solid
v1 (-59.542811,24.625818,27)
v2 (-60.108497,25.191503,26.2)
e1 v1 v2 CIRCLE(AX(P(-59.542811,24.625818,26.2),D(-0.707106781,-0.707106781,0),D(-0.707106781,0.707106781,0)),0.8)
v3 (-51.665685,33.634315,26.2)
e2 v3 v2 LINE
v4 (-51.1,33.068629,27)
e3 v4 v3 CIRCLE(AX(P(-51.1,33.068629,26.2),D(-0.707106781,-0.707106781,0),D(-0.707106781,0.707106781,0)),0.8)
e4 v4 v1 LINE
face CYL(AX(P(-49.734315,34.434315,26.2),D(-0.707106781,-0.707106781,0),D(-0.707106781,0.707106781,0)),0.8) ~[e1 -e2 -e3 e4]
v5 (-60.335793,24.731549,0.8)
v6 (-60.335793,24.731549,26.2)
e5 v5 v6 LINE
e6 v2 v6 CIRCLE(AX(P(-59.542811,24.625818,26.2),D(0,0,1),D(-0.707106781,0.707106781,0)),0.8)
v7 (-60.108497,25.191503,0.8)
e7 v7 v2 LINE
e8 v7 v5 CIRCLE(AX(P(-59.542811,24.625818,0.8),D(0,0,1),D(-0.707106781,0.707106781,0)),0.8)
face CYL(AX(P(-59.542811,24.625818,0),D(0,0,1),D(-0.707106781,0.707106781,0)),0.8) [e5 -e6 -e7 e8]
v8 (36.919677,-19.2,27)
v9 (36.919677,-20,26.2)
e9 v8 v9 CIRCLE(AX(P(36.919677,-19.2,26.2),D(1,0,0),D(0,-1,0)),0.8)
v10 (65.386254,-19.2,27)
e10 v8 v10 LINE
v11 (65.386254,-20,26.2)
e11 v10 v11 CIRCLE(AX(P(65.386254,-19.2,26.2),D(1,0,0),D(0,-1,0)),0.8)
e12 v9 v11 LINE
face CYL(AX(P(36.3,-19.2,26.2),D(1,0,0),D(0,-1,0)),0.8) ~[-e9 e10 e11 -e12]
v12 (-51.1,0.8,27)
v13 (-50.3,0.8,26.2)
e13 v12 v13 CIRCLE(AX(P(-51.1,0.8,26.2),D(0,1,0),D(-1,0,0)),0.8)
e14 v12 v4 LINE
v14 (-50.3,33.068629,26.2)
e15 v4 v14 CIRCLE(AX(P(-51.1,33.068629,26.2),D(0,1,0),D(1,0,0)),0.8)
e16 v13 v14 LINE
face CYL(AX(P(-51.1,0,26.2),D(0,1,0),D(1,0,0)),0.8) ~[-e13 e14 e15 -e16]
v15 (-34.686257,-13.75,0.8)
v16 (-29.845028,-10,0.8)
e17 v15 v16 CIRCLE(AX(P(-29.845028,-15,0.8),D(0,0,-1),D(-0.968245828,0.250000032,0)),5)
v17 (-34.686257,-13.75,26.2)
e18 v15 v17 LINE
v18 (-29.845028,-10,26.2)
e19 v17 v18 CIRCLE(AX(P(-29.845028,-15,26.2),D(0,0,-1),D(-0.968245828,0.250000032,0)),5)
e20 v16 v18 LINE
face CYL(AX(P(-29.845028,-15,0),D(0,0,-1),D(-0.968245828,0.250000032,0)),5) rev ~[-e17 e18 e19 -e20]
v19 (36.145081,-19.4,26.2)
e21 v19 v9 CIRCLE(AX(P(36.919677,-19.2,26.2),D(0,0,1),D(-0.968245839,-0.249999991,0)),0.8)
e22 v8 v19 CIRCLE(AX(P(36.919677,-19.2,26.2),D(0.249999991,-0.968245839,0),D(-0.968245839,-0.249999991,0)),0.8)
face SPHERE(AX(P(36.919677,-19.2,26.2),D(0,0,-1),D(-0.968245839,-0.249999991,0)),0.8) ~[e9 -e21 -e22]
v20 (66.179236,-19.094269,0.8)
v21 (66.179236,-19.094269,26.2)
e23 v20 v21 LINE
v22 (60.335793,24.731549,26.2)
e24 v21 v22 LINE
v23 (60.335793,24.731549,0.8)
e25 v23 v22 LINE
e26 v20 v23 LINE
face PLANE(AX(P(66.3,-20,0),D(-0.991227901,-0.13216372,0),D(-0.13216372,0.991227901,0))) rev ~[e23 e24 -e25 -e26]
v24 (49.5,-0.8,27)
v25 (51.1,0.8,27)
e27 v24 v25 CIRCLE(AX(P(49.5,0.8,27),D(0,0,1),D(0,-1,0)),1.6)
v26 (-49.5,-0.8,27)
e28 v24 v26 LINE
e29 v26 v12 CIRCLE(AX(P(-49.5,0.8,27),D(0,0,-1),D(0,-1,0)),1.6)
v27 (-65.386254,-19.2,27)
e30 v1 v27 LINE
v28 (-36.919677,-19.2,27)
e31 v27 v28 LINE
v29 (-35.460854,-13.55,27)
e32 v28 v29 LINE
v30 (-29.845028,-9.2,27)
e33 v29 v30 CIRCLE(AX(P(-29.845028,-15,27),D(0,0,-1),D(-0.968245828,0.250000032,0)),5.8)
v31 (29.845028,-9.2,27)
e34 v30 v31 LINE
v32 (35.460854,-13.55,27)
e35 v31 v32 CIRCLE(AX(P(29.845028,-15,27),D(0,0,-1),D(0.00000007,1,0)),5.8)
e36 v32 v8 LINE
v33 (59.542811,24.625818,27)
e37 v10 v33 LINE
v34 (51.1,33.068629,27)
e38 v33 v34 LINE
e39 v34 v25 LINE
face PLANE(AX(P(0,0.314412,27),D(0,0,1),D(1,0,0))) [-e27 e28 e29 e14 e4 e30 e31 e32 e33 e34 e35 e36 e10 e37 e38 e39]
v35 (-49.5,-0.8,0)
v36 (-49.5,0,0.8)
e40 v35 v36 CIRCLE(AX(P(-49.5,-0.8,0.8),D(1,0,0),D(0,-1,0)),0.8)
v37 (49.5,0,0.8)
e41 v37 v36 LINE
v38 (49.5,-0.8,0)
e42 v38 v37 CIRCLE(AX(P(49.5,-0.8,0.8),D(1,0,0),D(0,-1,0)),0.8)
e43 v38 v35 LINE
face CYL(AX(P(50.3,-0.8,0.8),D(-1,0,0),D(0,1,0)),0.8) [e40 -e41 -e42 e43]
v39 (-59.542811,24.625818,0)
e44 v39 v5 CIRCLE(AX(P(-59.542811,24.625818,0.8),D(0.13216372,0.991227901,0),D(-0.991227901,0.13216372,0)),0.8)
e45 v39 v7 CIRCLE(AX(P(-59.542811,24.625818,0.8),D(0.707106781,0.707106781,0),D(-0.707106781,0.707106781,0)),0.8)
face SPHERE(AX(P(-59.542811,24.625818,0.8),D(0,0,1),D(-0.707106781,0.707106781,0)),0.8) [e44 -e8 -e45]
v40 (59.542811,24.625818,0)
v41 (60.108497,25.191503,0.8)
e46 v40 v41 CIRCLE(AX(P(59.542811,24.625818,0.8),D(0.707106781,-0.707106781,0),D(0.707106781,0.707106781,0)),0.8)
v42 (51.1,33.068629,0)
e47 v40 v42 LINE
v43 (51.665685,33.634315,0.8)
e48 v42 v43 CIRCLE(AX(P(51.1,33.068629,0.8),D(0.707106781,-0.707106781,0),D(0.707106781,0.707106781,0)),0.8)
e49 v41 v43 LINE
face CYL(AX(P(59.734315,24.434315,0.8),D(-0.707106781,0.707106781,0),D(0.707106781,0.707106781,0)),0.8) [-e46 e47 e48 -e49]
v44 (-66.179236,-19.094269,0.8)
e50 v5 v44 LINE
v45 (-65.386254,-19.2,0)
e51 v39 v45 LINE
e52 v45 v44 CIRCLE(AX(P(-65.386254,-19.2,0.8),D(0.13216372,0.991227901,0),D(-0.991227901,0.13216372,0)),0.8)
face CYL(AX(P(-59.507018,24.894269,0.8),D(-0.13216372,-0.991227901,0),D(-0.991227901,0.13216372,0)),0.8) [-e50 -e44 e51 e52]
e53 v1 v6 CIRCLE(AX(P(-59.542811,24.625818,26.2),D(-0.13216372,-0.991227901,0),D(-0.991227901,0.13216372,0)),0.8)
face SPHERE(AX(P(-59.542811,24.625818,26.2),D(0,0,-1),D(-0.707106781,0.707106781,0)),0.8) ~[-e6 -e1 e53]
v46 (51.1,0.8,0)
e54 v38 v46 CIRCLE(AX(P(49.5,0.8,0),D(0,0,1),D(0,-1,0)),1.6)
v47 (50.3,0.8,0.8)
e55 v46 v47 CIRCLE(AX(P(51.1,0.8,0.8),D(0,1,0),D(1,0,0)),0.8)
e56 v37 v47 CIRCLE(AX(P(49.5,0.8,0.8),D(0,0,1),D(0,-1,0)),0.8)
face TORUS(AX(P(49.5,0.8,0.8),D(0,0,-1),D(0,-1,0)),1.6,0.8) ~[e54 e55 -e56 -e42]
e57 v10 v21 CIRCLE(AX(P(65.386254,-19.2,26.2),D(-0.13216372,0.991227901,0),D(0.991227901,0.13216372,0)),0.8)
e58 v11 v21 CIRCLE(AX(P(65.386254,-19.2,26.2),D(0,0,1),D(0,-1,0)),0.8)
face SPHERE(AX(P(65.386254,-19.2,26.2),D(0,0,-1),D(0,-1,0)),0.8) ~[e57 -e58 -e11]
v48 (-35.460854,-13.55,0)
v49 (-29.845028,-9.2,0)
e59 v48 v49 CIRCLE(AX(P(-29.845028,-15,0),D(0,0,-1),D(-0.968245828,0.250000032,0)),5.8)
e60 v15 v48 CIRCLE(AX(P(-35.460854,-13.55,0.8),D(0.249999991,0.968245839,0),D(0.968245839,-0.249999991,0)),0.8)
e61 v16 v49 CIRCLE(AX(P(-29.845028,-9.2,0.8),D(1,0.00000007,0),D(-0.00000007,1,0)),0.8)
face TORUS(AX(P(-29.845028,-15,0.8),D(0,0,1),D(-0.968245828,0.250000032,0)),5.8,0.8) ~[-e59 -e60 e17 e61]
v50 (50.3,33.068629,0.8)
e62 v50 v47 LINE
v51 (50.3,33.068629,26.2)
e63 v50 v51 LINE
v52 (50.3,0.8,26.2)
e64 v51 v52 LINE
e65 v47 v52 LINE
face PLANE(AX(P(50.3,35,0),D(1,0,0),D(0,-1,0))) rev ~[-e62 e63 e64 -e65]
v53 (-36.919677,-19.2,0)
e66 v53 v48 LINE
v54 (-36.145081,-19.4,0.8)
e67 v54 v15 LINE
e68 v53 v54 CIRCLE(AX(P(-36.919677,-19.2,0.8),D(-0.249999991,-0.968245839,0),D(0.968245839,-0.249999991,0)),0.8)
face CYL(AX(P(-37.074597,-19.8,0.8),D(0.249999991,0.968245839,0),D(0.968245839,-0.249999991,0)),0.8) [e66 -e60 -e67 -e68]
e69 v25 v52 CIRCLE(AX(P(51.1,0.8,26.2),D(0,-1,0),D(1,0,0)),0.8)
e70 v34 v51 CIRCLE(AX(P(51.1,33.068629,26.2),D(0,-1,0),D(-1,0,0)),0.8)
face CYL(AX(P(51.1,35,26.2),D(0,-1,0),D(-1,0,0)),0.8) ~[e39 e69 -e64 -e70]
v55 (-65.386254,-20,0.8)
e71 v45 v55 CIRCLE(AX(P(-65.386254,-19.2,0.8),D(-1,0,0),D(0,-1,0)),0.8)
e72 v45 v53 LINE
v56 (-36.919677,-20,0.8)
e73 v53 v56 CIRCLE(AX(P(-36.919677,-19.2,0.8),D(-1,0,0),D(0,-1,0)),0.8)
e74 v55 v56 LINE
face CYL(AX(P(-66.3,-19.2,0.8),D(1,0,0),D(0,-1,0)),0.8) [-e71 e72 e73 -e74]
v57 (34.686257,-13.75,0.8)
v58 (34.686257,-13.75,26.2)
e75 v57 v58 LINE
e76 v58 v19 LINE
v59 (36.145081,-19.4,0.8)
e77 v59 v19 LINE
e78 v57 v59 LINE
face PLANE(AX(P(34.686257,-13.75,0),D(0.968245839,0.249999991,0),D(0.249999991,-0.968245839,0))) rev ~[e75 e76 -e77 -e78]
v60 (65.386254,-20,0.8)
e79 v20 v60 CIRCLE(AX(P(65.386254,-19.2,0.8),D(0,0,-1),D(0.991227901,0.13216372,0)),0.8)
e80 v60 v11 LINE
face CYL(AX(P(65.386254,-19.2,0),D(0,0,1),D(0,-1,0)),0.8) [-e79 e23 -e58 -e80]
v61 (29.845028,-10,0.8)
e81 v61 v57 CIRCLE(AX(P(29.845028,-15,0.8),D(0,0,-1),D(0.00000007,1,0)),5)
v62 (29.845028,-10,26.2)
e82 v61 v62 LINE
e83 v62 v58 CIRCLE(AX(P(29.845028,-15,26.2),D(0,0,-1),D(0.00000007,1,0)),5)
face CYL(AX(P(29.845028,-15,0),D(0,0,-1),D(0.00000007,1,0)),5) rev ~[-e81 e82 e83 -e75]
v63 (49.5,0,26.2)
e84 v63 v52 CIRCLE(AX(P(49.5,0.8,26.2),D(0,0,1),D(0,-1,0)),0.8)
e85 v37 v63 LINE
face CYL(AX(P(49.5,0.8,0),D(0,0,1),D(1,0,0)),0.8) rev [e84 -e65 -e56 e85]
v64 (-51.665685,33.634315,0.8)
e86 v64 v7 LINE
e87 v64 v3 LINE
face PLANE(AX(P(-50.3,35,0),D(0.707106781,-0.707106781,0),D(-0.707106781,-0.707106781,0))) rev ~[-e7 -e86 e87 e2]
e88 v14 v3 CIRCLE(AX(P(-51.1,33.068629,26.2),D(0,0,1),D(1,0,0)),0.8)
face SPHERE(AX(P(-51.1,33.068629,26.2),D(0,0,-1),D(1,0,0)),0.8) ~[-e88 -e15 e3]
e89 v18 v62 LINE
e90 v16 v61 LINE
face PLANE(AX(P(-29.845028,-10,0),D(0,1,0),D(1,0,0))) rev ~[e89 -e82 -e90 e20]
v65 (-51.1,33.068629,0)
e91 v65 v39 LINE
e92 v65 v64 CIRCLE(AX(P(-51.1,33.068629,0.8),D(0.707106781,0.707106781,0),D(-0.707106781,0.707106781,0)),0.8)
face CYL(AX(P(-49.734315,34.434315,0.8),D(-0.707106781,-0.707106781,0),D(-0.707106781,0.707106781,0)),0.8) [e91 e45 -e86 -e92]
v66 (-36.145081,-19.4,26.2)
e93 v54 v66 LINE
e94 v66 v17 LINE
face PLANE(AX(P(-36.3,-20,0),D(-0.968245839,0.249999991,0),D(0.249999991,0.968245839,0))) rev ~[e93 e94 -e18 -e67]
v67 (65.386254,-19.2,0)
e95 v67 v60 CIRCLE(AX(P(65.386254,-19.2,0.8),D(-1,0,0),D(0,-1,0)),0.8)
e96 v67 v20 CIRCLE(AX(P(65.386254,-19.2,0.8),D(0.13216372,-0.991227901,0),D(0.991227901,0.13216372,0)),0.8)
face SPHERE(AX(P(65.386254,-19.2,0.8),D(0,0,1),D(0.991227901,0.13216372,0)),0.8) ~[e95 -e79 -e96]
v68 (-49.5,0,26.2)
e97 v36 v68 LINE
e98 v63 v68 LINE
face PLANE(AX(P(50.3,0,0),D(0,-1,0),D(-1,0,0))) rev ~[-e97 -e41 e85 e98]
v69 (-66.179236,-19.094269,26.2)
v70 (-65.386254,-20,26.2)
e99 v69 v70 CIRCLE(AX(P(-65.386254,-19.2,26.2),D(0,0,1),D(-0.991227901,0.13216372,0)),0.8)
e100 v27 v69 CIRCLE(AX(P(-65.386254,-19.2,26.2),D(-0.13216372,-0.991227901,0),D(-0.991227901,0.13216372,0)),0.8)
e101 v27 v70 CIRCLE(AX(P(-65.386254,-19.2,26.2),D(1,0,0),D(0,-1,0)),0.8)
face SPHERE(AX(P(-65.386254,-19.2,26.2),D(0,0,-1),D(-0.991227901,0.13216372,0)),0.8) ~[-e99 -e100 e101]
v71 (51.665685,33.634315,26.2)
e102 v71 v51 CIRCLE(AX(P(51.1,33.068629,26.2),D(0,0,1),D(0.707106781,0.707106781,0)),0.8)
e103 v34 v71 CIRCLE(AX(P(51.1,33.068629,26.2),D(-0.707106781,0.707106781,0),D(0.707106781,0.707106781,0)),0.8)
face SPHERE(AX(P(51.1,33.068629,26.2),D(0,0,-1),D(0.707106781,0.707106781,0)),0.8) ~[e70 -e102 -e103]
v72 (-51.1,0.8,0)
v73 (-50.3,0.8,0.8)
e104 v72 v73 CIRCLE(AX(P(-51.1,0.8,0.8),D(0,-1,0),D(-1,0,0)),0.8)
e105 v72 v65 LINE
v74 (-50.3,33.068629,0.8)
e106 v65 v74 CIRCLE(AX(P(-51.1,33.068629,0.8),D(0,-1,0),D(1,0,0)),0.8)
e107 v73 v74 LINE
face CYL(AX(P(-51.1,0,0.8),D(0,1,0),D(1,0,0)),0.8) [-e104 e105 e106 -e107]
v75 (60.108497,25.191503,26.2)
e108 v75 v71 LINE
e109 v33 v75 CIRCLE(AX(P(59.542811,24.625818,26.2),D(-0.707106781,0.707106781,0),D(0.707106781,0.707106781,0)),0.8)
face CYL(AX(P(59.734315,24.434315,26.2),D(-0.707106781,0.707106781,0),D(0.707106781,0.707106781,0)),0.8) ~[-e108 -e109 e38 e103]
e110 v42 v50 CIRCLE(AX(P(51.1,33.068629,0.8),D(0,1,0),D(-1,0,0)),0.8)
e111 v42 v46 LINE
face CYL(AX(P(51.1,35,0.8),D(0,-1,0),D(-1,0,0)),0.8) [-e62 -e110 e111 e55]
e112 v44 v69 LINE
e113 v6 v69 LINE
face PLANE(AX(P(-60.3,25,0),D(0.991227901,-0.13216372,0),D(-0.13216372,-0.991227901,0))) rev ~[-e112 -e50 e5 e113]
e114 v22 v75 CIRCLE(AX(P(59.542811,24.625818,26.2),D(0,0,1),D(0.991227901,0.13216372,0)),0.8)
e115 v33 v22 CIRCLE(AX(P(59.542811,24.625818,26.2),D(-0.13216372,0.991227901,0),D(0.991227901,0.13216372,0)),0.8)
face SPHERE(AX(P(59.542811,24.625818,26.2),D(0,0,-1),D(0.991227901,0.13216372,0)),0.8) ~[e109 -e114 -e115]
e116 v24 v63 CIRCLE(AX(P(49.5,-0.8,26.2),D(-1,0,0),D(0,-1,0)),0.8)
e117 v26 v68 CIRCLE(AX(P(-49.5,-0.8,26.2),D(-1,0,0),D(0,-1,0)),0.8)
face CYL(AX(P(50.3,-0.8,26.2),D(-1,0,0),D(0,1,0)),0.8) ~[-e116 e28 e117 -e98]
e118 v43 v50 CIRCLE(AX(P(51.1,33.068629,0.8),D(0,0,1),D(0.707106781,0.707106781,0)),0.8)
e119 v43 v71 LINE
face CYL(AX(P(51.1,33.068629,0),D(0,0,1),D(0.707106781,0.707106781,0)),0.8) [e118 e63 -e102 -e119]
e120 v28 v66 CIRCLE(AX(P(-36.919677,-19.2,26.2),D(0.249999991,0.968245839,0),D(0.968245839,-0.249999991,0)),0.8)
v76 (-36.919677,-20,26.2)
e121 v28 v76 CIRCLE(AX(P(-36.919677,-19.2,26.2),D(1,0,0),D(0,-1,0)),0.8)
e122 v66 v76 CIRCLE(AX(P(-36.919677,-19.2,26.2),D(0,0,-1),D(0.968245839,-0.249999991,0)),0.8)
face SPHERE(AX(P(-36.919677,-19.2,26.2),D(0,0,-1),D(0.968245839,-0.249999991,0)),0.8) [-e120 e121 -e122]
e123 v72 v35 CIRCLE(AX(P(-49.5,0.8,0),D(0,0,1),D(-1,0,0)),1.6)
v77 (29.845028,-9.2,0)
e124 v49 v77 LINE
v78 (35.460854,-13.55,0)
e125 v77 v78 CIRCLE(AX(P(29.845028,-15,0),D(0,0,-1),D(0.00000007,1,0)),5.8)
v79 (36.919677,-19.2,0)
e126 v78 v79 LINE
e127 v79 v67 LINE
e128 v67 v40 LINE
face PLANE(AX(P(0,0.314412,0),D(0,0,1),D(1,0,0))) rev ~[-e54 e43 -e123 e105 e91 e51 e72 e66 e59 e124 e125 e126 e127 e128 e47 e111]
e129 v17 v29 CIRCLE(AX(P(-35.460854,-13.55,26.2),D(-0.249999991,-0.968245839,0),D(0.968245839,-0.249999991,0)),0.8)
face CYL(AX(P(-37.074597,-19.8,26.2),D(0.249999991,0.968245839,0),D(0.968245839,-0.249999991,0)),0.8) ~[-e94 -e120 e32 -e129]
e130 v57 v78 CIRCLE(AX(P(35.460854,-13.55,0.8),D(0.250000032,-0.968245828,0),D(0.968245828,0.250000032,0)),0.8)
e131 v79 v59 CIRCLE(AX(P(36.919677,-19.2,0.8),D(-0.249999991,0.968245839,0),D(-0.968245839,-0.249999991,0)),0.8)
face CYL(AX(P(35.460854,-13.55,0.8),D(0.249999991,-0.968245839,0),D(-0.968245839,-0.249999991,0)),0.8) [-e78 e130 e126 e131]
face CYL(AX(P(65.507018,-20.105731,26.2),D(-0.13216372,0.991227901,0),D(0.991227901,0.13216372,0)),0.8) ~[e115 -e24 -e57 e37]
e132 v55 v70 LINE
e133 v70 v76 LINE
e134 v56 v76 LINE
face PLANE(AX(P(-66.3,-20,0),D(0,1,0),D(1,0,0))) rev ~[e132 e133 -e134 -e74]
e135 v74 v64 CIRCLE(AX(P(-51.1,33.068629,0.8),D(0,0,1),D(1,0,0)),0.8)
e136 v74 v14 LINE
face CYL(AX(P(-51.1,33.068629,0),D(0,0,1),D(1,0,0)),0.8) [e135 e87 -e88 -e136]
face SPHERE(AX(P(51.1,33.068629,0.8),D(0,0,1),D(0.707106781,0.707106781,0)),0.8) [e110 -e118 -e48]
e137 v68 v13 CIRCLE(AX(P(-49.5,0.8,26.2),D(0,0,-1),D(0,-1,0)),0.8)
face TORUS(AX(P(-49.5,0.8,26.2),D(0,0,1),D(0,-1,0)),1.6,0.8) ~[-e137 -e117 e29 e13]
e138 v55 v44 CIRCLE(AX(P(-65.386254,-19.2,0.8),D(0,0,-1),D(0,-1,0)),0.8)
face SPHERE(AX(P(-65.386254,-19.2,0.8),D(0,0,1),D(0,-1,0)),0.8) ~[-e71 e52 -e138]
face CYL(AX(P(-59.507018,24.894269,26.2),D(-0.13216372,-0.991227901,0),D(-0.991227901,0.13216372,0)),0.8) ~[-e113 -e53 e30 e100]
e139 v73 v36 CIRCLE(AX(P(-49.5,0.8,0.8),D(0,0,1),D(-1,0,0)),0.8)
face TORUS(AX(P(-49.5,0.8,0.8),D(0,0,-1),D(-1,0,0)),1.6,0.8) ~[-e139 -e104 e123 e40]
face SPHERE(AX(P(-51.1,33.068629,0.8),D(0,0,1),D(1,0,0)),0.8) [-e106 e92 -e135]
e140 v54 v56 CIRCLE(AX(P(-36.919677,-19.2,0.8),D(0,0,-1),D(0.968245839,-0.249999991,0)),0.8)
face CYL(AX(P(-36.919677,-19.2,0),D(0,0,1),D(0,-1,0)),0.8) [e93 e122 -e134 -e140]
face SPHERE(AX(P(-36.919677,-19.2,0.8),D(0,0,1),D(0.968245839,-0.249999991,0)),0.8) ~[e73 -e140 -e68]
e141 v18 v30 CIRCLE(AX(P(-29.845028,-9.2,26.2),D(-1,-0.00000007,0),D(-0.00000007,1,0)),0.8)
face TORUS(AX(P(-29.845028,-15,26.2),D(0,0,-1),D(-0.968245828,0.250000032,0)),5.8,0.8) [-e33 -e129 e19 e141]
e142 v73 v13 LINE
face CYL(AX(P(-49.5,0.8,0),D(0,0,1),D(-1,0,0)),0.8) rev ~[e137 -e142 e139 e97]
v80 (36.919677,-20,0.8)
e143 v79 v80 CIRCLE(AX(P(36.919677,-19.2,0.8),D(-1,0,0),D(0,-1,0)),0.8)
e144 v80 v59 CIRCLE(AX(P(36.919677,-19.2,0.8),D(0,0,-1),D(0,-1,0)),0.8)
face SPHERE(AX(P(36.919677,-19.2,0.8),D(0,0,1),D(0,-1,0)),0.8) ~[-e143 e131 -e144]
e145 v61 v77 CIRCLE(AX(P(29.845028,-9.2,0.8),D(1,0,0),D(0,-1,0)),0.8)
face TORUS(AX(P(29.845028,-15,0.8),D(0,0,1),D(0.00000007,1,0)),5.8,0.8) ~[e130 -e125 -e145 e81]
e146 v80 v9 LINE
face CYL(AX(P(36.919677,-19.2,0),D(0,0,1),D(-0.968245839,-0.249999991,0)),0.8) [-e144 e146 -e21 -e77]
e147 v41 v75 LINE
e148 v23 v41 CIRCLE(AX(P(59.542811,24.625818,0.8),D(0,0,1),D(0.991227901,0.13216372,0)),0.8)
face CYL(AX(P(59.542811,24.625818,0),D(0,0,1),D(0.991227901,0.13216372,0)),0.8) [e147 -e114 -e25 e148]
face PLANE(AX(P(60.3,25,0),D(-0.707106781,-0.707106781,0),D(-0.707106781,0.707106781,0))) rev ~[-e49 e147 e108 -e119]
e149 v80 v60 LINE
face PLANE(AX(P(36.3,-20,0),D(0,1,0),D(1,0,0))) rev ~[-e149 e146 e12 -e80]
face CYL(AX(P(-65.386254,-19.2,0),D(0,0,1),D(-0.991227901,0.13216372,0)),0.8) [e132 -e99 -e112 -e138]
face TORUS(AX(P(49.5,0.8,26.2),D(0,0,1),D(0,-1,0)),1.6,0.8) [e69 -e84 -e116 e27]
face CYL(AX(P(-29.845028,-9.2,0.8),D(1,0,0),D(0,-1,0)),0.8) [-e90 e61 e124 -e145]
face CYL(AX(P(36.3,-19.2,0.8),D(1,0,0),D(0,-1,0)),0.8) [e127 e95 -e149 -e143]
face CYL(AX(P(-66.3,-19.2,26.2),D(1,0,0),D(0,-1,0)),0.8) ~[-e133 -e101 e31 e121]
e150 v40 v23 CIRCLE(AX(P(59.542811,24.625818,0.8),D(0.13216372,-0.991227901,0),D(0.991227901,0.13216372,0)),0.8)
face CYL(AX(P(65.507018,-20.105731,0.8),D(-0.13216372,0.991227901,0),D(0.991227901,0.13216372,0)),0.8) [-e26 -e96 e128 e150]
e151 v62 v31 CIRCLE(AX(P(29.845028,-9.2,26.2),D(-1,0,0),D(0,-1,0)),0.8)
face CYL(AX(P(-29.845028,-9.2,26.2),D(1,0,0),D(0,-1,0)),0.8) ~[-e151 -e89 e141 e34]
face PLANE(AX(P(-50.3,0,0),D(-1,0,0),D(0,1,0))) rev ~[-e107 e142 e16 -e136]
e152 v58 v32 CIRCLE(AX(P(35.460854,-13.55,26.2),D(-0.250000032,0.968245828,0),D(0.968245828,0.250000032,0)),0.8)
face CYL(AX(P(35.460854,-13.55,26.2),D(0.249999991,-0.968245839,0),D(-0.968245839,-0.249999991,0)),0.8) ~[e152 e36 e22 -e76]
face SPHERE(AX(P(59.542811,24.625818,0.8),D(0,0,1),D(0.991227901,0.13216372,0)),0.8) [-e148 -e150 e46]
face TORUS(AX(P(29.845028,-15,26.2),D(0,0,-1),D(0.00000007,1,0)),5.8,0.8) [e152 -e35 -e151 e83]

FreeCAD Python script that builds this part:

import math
import FreeCAD as App
import Part
import Sketcher

V = App.Vector

doc = App.newDocument("Part")
body = doc.addObject("PartDesign::Body", "Body")

sketch1 = body.newObject("Sketcher::SketchObject", "Sketch")
sketch1.AttachmentSupport = (doc.getObject("XY_Plane"), [""])
sketch1.MapMode = "FlatFace"
sketch1.addGeometry([
    Part.LineSegment(V(-50.3, 0, 0), V(-50.3, 35, 0)),
    Part.LineSegment(V(-50.3, 35, 0), V(-60.3, 25, 0)),
    Part.LineSegment(V(-60.3, 25, 0), V(-66.3, -20, 0)),
    Part.LineSegment(V(-66.3, -20, 0), V(-36.3, -20, 0)),
    Part.LineSegment(V(-36.3, -20, 0), V(-34.686257, -13.75, 0)),
    Part.ArcOfCircle(Part.Circle(V(-29.845028, -15, 0), V(0, 0, 1), 5), math.radians(90.000004), math.radians(165.522486)),
    Part.LineSegment(V(-29.845028, -10, 0), V(29.845028, -10, 0)),
    Part.ArcOfCircle(Part.Circle(V(29.845028, -15, 0), V(0, 0, 1), 5), math.radians(14.477514), math.radians(89.999996)),
    Part.LineSegment(V(34.686257, -13.75, 0), V(36.3, -20, 0)),
    Part.LineSegment(V(36.3, -20, 0), V(66.3, -20, 0)),
    Part.LineSegment(V(66.3, -20, 0), V(60.3, 25, 0)),
    Part.LineSegment(V(60.3, 25, 0), V(50.3, 35, 0)),
    Part.LineSegment(V(50.3, 35, 0), V(50.3, 0, 0)),
    Part.LineSegment(V(50.3, 0, 0), V(-50.3, 0, 0)),
], False)
sketch1.addConstraint([
    Sketcher.Constraint("Coincident", 0, 2, 1, 1),
    Sketcher.Constraint("Coincident", 1, 2, 2, 1),
    Sketcher.Constraint("Coincident", 2, 2, 3, 1),
    Sketcher.Constraint("Coincident", 3, 2, 4, 1),
    Sketcher.Constraint("Tangent", 4, 2, 5, 2),
    Sketcher.Constraint("Tangent", 5, 1, 6, 1),
    Sketcher.Constraint("Tangent", 6, 2, 7, 2),
    Sketcher.Constraint("Tangent", 7, 1, 8, 1),
    Sketcher.Constraint("Coincident", 8, 2, 9, 1),
    Sketcher.Constraint("Coincident", 9, 2, 10, 1),
    Sketcher.Constraint("Coincident", 10, 2, 11, 1),
    Sketcher.Constraint("Coincident", 11, 2, 12, 1),
    Sketcher.Constraint("Coincident", 12, 2, 13, 1),
    Sketcher.Constraint("Coincident", 13, 2, 0, 1),
    Sketcher.Constraint("Vertical", 0),
    Sketcher.Constraint("Horizontal", 3),
    Sketcher.Constraint("Horizontal", 6),
    Sketcher.Constraint("Horizontal", 9),
    Sketcher.Constraint("Vertical", 12),
    Sketcher.Constraint("Horizontal", 13),
    Sketcher.Constraint("Equal", 5, 7),
    Sketcher.Constraint("Symmetric", 12, 2, 13, 2, -1, 1),
    Sketcher.Constraint("Symmetric", 4, 2, 7, 1, -2),
    Sketcher.Constraint("Symmetric", 2, 2, 9, 2, -2),
    Sketcher.Constraint("Symmetric", 1, 2, 10, 2, -2),
    Sketcher.Constraint("Perpendicular", 1, 11),
    Sketcher.Constraint("Horizontal", 0, 2, 11, 2),
    Sketcher.Constraint("Radius", 5, 5.0),
    Sketcher.Constraint("DistanceX", 3, 1, 3, 2, 30.0),
    Sketcher.Constraint("DistanceY", 0, 1, 0, 2, 35.0),
    Sketcher.Constraint("DistanceX", 13, 2, 13, 1, 100.6),
    Sketcher.Constraint("DistanceY", 5, 3, -1, 1, 15.0),
    Sketcher.Constraint("DistanceY", -1, 1, 1, 2, 25.0),
    Sketcher.Constraint("DistanceY", 2, 2, -1, 1, 20.0),
    Sketcher.Constraint("DistanceX", 2, 2, 1, 2, 6.0),
    Sketcher.Constraint("DistanceY", 4, 2, -1, 1, 13.75),
])
pad1 = body.newObject("PartDesign::Pad", "Pad")
pad1.Profile = sketch1
pad1.Length = 27
doc.recompute()

fillet = body.newObject("PartDesign::Fillet", "Fillet")
fillet.Base = (pad1, ["Edge1"])
fillet.UseAllEdges = True
fillet.Radius = 0.8

doc.recompute()
